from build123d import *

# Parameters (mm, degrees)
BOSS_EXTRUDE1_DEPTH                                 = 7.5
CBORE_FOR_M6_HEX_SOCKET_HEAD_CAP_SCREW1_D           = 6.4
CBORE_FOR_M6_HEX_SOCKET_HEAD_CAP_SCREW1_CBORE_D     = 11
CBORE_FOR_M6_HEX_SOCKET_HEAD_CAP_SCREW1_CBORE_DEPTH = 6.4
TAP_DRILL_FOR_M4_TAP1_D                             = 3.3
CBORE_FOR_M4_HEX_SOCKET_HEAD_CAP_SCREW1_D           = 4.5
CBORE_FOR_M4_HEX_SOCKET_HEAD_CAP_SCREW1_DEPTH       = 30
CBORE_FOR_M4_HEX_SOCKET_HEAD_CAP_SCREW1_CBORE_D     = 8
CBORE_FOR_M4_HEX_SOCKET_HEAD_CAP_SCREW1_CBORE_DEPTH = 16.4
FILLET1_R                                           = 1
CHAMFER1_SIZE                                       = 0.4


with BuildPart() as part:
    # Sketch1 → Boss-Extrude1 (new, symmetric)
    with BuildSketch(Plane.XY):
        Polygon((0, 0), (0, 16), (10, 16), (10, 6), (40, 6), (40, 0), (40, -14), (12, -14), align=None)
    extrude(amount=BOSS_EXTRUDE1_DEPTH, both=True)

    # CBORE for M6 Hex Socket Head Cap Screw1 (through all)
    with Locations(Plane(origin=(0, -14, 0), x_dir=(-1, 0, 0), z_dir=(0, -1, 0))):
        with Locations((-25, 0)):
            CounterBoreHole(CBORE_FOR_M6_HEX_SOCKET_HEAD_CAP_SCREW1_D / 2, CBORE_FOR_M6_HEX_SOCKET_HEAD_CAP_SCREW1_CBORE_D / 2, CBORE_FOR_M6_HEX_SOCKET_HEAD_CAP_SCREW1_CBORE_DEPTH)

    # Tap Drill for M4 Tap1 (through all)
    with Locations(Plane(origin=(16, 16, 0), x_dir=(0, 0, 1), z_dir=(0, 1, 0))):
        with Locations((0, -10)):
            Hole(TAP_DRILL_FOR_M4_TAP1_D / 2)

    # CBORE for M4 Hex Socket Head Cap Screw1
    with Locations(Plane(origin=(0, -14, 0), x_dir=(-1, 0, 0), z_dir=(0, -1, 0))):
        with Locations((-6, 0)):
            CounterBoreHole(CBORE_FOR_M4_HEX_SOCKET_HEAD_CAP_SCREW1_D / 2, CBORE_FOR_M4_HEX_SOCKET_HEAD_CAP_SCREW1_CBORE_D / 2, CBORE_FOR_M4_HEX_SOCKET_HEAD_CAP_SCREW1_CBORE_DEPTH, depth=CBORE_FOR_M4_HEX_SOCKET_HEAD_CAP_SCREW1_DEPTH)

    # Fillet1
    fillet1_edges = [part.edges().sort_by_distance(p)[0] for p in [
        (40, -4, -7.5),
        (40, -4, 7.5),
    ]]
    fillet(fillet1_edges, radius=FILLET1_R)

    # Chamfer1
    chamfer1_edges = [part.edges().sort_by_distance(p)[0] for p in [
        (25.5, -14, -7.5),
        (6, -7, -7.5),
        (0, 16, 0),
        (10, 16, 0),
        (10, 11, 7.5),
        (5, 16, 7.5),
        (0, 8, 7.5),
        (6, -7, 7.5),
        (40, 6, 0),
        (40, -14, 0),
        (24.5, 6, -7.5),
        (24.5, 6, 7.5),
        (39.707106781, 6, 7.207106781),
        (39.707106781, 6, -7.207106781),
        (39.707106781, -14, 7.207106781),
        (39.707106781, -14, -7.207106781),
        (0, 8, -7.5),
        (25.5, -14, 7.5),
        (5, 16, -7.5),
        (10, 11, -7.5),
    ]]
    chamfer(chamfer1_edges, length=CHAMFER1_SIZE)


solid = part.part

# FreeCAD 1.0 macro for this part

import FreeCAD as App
import Part
import Sketcher


def edges_at(feature, points):
    """Names of the edges that pass closest to the given points."""
    edges = feature.Shape.Edges
    near = lambda p: min(range(len(edges)), key=lambda i: edges[i].distToShape(Part.Vertex(*p))[0])
    return sorted({f"Edge{near(p) + 1}" for p in points})


def add_polygon(sketch, points):
    """Adds a closed chain of lines whose ends are joined by coincident constraints."""
    first, n = sketch.GeometryCount, len(points)
    for a, b in zip(points, points[1:] + points[:1]):
        sketch.addGeometry(Part.LineSegment(App.Vector(*a, 0), App.Vector(*b, 0)), False)
    for i in range(n):
        sketch.addConstraint(Sketcher.Constraint("Coincident", first + i, 2, first + (i + 1) % n, 1))

doc = App.newDocument("Part")
body = doc.addObject("PartDesign::Body", "Body")

sketch1 = body.newObject("Sketcher::SketchObject", "Sketch")
sketch1.AttachmentSupport = (doc.getObject("XY_Plane"), [""])
sketch1.MapMode = "FlatFace"
add_polygon(sketch1, [(0, 16), (0, 0), (12, -14), (40, -14), (40, 6), (10, 6), (10, 16)])
sketch1.addConstraint([
    Sketcher.Constraint("Vertical", 0),
    Sketcher.Constraint("Horizontal", 2),
    Sketcher.Constraint("Vertical", 3),
    Sketcher.Constraint("Horizontal", 4),
    Sketcher.Constraint("Vertical", 5),
    Sketcher.Constraint("Horizontal", 6),
    Sketcher.Constraint("Coincident", 0, 2, -1, 1),
    Sketcher.Constraint("Equal", 6, 5),
    Sketcher.Constraint("DistanceX", 2, 1, 2, 2, 28.0),
    Sketcher.Constraint("DistanceX", 4, 2, 4, 1, 30.0),
    Sketcher.Constraint("DistanceX", 6, 2, 6, 1, 10.0),
    Sketcher.Constraint("DistanceY", 0, 2, 0, 1, 16.0),
    Sketcher.Constraint("DistanceY", 3, 1, 3, 2, 20.0),
])
pad1 = body.newObject("PartDesign::Pad", "Pad")
pad1.Profile = sketch1
pad1.Length = 15
pad1.Midplane = True

sketch2 = body.newObject("Sketcher::SketchObject", "Sketch001")
sketch2.AttachmentSupport = (doc.getObject("XZ_Plane"), [""])
sketch2.MapMode = "FlatFace"
sketch2.AttachmentOffset = App.Placement(App.Vector(0, 0, 14), App.Rotation())
sketch2.addGeometry(Part.Circle(App.Vector(25, 0, 0), App.Vector(0, 0, 1), 3.2), False)
sketch2.addConstraint([
    Sketcher.Constraint("PointOnObject", 0, 3, -1),
    Sketcher.Constraint("Diameter", 0, 6.4),
    Sketcher.Constraint("DistanceX", -1, 1, 0, 3, 25.0),
])
doc.recompute()
hole = body.newObject("PartDesign::Hole", "Hole")
hole.Profile = sketch2
hole.ThreadType = "None"
hole.Diameter = 6.4
hole.DepthType = "ThroughAll"
hole.HoleCutType = "Counterbore"
hole.HoleCutDiameter = 11
hole.HoleCutDepth = 6.4

sketch3 = body.newObject("Sketcher::SketchObject", "Sketch002")
sketch3.AttachmentSupport = (doc.getObject("XZ_Plane"), [""])
sketch3.MapMode = "FlatFace"
sketch3.AttachmentOffset = App.Placement(App.Vector(0, 0, -16), App.Rotation())
sketch3.addGeometry(Part.Circle(App.Vector(6, 0, 0), App.Vector(0, 0, 1), 1.6), False)
sketch3.addConstraint([
    Sketcher.Constraint("PointOnObject", 0, 3, -1),
    Sketcher.Constraint("Diameter", 0, 3.3),
    Sketcher.Constraint("DistanceX", -1, 1, 0, 3, 6.0),
])
doc.recompute()
hole2 = body.newObject("PartDesign::Hole", "Hole001")
hole2.Profile = sketch3
hole2.ThreadType = "None"
hole2.Diameter = 3.3
hole2.DepthType = "ThroughAll"
hole2.Reversed = True

sketch4 = body.newObject("Sketcher::SketchObject", "Sketch003")
sketch4.AttachmentSupport = (doc.getObject("XZ_Plane"), [""])
sketch4.MapMode = "FlatFace"
sketch4.AttachmentOffset = App.Placement(App.Vector(0, 0, 14), App.Rotation())
sketch4.addGeometry(Part.Circle(App.Vector(6, 0, 0), App.Vector(0, 0, 1), 2.2), False)
sketch4.addConstraint([
    Sketcher.Constraint("PointOnObject", 0, 3, -1),
    Sketcher.Constraint("Diameter", 0, 4.5),
    Sketcher.Constraint("DistanceX", -1, 1, 0, 3, 6.0),
])
doc.recompute()
hole3 = body.newObject("PartDesign::Hole", "Hole002")
hole3.Profile = sketch4
hole3.ThreadType = "None"
hole3.Diameter = 4.5
hole3.DepthType = "Dimension"
hole3.Depth = 30
hole3.DrillPoint = "Flat"
hole3.HoleCutType = "Counterbore"
hole3.HoleCutDiameter = 8
hole3.HoleCutDepth = 16.4
doc.recompute()

fillet = body.newObject("PartDesign::Fillet", "Fillet")
fillet.Base = (hole3, edges_at(hole3, [(40, -4, -7.5), (40, -4, 7.5)]))
fillet.Radius = 1
doc.recompute()

chamfer = body.newObject("PartDesign::Chamfer", "Chamfer")
chamfer.Base = (fillet, edges_at(fillet, [
    (25.5, -14, -7.5),
    (6, -7, -7.5),
    (0, 16, 0),
    (10, 16, 0),
    (10, 11, 7.5),
    (5, 16, 7.5),
    (0, 8, 7.5),
    (6, -7, 7.5),
    (40, 6, 0),
    (40, -14, 0),
    (24.5, 6, -7.5),
    (24.5, 6, 7.5),
    (39.707, 6, 7.207),
    (39.707, 6, -7.207),
    (39.707, -14, 7.207),
    (39.707, -14, -7.207),
    (0, 8, -7.5),
    (25.5, -14, 7.5),
    (5, 16, -7.5),
    (10, 11, -7.5),
]))
chamfer.Size = 0.4

doc.recompute()
